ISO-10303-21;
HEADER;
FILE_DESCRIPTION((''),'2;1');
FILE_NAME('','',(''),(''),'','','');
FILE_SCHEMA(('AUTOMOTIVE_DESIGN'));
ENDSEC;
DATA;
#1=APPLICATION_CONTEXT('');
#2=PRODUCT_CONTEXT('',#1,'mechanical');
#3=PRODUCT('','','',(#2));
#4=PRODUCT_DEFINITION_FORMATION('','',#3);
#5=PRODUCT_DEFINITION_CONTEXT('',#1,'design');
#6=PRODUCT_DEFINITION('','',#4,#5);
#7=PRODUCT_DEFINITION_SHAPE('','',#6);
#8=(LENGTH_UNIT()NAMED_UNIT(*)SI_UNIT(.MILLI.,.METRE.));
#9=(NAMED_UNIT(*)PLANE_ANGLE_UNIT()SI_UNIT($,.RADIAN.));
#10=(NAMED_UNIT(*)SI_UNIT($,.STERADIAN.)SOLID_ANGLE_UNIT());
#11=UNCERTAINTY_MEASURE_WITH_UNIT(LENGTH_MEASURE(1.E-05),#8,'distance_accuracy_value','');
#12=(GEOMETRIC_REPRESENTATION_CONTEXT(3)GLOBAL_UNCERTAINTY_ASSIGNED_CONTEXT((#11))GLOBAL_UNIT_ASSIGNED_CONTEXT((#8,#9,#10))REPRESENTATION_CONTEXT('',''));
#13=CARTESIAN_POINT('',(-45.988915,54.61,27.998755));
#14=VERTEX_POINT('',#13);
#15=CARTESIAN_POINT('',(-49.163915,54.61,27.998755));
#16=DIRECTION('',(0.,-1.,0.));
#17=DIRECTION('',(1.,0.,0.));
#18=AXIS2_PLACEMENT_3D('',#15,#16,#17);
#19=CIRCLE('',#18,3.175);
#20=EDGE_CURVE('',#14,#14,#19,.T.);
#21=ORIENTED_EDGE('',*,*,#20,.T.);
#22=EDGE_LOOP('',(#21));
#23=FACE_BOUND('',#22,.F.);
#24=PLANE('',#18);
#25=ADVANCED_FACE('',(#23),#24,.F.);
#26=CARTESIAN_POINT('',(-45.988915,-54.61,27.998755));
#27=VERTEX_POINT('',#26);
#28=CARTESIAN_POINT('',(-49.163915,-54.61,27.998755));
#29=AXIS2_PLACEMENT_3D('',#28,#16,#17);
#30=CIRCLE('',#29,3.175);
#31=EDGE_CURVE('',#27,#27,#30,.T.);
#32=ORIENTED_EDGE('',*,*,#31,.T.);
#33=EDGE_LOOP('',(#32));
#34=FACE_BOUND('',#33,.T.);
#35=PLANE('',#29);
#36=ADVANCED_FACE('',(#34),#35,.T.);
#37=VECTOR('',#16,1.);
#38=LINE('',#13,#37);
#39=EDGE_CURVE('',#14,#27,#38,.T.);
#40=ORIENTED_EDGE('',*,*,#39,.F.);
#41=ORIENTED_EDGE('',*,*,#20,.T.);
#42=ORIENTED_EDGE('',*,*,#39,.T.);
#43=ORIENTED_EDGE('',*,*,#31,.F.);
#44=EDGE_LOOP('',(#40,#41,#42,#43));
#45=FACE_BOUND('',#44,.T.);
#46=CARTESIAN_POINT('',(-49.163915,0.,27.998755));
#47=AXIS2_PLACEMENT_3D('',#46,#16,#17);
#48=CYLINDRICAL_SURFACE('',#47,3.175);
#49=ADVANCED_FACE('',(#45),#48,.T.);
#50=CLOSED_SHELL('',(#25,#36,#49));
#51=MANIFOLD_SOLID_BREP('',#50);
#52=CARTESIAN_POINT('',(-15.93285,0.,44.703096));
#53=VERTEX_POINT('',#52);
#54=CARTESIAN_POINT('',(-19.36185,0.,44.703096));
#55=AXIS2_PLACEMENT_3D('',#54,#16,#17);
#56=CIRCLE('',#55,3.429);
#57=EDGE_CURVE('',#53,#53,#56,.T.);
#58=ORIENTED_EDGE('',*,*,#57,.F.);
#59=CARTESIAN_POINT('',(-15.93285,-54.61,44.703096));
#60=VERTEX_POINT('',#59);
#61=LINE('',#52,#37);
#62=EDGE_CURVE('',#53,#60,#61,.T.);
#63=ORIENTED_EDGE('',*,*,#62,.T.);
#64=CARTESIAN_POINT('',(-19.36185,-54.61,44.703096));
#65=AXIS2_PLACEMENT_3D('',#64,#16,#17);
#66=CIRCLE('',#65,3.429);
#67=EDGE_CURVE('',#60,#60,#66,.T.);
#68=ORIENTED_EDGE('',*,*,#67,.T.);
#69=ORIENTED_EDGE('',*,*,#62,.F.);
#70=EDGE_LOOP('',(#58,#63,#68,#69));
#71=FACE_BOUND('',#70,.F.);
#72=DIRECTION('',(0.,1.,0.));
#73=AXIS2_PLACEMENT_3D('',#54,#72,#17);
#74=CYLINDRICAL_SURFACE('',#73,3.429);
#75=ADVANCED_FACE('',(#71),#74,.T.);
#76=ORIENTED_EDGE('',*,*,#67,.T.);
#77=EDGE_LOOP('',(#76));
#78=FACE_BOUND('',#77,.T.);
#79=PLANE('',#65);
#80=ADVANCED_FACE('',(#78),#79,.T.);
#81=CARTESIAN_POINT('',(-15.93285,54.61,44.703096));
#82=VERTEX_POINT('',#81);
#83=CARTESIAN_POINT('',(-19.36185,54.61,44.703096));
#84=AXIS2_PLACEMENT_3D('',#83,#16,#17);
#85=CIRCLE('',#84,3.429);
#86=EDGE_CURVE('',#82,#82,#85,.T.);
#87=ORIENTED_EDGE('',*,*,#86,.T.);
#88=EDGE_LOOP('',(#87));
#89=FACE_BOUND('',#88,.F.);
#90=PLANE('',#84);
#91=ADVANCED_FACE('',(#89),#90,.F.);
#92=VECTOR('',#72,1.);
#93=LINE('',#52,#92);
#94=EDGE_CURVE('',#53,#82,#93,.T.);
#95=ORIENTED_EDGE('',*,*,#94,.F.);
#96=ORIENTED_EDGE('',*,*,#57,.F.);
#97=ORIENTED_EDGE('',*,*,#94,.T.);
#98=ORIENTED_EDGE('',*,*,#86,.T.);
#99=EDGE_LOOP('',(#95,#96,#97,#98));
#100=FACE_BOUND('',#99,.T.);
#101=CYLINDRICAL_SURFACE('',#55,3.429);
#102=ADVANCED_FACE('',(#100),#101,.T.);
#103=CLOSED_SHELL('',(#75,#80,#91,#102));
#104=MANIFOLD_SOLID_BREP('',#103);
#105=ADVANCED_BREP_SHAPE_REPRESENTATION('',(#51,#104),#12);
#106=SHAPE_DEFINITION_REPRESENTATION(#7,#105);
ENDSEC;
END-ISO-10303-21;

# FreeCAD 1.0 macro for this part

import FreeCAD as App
import Part
import Sketcher

V = App.Vector
Q = App.Units.Quantity

doc = App.newDocument("Part")
body = doc.addObject("PartDesign::Body", "Body")
body.AllowCompound = True

sketch1 = body.newObject("Sketcher::SketchObject", "Sketch")
sketch1.AttachmentSupport = (doc.getObject("XZ_Plane"), [""])
sketch1.MapMode = "FlatFace"
sketch1.addGeometry(Part.Circle(V(-19.36185, 44.703096, 0), V(0, 0, 1), 3.429), False)
sketch1.addGeometry(Part.Circle(V(-49.163915, 27.998755, 0), V(0, 0, 1), 3.175), False)
sketch1.addConstraint(Sketcher.Constraint("Diameter", 0, Q("0.27 in")))
sketch1.addConstraint(Sketcher.Constraint("Diameter", 1, Q("0.25 in")))
sketch1.addConstraint(Sketcher.Constraint("DistanceX", 0, 3, -1, 1, 19.36185))
sketch1.addConstraint(Sketcher.Constraint("DistanceY", 1, 3, 0, 3, 16.704341))
sketch1.addConstraint(Sketcher.Constraint("DistanceY", -1, 1, 0, 3, 44.703096))
sketch1.addConstraint(Sketcher.Constraint("DistanceX", 1, 3, -1, 1, 49.163915))
pad1 = body.newObject("PartDesign::Pad", "Pad")
pad1.Profile = sketch1
pad1.Length = Q("4.3 in")
pad1.Midplane = True

doc.recompute()
